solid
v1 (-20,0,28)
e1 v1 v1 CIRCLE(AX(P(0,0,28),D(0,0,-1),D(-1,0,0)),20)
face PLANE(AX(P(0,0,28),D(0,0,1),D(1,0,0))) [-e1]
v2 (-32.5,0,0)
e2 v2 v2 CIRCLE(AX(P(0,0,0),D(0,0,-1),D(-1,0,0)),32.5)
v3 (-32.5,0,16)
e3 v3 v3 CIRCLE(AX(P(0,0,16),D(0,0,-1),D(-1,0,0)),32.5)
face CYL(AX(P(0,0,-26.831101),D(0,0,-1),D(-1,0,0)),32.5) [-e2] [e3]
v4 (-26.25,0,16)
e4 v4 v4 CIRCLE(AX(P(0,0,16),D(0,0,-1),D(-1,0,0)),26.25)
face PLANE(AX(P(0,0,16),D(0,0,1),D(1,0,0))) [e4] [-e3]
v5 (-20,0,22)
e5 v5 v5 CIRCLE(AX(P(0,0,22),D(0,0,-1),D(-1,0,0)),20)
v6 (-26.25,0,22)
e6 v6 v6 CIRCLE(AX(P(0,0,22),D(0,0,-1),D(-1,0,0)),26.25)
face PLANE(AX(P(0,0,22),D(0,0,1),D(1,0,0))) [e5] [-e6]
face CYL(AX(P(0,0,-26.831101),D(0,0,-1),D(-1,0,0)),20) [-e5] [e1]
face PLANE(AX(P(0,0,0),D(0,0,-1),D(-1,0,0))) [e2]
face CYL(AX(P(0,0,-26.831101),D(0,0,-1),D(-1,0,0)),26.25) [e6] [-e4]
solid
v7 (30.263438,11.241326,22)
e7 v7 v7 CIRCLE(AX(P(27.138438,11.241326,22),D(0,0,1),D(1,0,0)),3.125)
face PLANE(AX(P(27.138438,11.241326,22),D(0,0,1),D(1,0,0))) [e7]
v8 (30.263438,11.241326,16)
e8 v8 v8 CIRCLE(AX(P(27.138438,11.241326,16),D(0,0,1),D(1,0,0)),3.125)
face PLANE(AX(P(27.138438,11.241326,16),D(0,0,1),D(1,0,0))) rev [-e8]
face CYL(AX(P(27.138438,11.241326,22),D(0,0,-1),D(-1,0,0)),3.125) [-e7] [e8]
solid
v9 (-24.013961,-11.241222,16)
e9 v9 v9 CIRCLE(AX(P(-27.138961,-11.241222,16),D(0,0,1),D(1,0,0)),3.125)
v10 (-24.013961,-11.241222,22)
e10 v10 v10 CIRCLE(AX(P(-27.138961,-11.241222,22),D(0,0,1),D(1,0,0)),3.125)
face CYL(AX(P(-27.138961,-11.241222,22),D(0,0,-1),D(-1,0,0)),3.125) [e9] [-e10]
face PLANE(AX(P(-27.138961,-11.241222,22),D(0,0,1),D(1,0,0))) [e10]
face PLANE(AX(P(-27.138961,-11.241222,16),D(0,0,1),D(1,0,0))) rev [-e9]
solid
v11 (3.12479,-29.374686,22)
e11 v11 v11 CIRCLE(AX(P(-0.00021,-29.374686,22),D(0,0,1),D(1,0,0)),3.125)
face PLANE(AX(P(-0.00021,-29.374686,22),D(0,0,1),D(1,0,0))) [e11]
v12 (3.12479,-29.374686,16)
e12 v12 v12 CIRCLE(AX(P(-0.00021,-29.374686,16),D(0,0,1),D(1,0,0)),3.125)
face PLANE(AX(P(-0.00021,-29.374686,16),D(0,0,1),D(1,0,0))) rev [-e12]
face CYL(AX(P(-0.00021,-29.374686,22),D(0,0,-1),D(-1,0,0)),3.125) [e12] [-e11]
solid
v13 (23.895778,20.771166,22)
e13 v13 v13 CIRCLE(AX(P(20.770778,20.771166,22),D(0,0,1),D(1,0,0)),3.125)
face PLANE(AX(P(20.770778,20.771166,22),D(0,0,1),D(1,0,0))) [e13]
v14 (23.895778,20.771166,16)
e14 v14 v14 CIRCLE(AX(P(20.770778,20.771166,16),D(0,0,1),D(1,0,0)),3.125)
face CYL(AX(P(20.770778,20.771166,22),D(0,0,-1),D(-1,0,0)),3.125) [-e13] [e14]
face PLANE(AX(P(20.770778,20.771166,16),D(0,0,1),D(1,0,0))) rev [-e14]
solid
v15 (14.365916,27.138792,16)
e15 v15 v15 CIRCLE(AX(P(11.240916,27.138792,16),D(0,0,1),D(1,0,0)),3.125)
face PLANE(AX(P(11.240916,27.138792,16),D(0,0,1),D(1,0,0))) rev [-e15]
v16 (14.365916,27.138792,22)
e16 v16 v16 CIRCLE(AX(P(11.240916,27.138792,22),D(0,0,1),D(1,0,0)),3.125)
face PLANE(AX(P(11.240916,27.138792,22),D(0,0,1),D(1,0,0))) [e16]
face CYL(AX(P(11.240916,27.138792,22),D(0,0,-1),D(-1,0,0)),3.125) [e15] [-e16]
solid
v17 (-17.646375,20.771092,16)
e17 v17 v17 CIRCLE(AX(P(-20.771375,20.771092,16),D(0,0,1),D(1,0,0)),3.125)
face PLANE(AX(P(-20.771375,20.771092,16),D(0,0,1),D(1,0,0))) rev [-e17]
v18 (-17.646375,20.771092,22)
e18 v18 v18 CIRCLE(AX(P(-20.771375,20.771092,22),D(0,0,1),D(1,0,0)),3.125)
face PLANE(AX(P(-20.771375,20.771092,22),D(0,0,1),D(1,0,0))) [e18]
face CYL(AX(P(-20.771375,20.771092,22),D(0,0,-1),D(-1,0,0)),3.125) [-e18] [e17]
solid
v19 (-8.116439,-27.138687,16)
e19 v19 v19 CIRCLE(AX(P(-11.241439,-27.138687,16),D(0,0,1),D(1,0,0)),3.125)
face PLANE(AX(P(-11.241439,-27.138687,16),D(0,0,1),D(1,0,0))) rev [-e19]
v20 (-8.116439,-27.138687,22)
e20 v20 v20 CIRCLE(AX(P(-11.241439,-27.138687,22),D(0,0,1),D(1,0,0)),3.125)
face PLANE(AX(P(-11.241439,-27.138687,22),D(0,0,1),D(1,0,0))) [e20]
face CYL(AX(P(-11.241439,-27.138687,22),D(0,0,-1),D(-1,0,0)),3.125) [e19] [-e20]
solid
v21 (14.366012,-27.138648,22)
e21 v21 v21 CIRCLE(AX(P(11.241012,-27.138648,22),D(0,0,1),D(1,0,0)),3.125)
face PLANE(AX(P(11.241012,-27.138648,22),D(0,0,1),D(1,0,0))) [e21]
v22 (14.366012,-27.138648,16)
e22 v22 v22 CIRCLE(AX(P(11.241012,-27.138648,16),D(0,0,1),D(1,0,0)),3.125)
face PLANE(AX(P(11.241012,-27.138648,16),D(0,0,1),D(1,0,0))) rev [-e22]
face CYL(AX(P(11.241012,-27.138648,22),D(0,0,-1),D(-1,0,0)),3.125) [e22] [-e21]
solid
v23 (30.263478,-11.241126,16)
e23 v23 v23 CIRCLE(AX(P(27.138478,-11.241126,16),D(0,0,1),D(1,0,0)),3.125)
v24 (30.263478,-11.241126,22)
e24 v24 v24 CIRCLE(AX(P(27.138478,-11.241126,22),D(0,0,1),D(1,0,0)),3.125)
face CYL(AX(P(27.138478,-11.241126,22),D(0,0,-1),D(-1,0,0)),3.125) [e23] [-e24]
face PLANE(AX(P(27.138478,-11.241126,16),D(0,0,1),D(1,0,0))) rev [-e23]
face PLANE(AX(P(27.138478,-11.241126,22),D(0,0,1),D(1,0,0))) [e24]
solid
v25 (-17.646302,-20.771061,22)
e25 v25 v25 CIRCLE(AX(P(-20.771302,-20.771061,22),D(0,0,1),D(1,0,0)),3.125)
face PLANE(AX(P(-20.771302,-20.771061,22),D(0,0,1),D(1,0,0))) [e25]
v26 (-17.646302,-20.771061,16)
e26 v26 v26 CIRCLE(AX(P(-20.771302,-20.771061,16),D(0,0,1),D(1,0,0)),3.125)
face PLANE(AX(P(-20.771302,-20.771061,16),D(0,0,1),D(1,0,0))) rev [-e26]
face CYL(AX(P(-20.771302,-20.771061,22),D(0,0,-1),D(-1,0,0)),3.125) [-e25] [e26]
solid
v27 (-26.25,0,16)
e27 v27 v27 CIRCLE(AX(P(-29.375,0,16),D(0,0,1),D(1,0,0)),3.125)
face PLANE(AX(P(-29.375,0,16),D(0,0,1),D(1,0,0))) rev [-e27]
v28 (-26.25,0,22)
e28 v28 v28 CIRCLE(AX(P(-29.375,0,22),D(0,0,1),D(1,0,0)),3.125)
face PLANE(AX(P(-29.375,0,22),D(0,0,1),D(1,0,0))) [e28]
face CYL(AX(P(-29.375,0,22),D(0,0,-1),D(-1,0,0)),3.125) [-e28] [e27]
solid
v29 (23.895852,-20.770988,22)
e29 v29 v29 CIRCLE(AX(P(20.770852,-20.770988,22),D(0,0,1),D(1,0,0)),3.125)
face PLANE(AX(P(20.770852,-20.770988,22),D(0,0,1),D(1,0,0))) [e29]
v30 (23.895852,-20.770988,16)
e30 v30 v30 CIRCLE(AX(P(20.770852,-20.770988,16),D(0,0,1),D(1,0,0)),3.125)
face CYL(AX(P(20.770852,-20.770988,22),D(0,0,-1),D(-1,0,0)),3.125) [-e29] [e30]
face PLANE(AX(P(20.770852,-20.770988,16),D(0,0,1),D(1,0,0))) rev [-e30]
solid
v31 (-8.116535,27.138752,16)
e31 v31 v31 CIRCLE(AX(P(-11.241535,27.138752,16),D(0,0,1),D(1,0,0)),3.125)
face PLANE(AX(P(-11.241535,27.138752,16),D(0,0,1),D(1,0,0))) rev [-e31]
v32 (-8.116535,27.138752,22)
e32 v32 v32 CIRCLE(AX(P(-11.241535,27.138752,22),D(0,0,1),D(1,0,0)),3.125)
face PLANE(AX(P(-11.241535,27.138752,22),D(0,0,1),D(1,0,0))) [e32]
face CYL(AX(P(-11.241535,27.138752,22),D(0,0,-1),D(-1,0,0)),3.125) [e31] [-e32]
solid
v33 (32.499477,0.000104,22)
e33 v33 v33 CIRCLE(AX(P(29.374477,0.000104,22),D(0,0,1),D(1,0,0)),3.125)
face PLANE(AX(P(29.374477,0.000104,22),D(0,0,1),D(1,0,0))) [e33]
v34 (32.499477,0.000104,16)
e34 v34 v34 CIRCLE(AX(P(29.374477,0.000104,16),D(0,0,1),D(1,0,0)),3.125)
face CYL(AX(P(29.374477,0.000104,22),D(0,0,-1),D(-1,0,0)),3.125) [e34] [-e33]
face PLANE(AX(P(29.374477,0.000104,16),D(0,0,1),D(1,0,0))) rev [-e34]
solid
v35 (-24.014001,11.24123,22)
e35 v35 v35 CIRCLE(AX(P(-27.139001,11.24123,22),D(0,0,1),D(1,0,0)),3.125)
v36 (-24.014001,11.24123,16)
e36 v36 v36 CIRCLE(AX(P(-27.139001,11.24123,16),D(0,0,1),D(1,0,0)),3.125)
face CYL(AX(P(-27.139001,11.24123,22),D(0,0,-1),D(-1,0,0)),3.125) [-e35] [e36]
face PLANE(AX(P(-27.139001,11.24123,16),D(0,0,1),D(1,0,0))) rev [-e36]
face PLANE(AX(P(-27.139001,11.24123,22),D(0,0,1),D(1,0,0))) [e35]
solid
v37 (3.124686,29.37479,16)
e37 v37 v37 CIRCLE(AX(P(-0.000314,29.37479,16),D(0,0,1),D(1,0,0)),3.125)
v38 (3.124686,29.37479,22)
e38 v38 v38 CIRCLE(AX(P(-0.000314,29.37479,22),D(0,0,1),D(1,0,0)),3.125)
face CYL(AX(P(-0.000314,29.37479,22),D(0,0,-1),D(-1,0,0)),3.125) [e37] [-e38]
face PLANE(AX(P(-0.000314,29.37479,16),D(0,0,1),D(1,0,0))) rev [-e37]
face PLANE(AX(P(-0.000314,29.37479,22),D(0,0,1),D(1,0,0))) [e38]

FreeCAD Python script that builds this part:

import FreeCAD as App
import Part
import Sketcher

V = App.Vector

doc = App.newDocument("Part")
body = doc.addObject("PartDesign::Body", "Body")

sketch1 = body.newObject("Sketcher::SketchObject", "Sketch")
sketch1.AttachmentSupport = (doc.getObject("XZ_Plane"), [""])
sketch1.MapMode = "FlatFace"
sketch1.addGeometry([
    Part.LineSegment(V(32, 0, 0), V(0, 0, 0)),
    Part.LineSegment(V(0, 0, 0), V(0, 28, 0)),
    Part.LineSegment(V(0, 28, 0), V(20, 28, 0)),
    Part.LineSegment(V(20, 28, 0), V(20, 22, 0)),
    Part.LineSegment(V(20, 22, 0), V(26, 22, 0)),
    Part.LineSegment(V(26, 22, 0), V(26, 16, 0)),
    Part.LineSegment(V(26, 16, 0), V(32, 16, 0)),
    Part.LineSegment(V(32, 16, 0), V(32, 0, 0)),
], False)
sketch1.addConstraint([
    Sketcher.Constraint("Coincident", 0, 2, 1, 1),
    Sketcher.Constraint("Coincident", 1, 2, 2, 1),
    Sketcher.Constraint("Coincident", 2, 2, 3, 1),
    Sketcher.Constraint("Coincident", 3, 2, 4, 1),
    Sketcher.Constraint("Coincident", 4, 2, 5, 1),
    Sketcher.Constraint("Coincident", 5, 2, 6, 1),
    Sketcher.Constraint("Coincident", 6, 2, 7, 1),
    Sketcher.Constraint("Coincident", 7, 2, 0, 1),
    Sketcher.Constraint("Horizontal", 0),
    Sketcher.Constraint("Vertical", 1),
    Sketcher.Constraint("Horizontal", 2),
    Sketcher.Constraint("Vertical", 3),
    Sketcher.Constraint("Horizontal", 4),
    Sketcher.Constraint("Vertical", 5),
    Sketcher.Constraint("Horizontal", 6),
    Sketcher.Constraint("Vertical", 7),
    Sketcher.Constraint("Coincident", 0, 2, -1, 1),
    Sketcher.Constraint("Equal", 4, 6),
    Sketcher.Constraint("Equal", 3, 5),
    Sketcher.Constraint("DistanceX", 2, 1, 2, 2, 20.0),
    Sketcher.Constraint("DistanceY", 1, 1, 1, 2, 28.0),
    Sketcher.Constraint("DistanceY", 3, 2, 3, 1, 6.0),
    Sketcher.Constraint("DistanceX", 0, 2, 0, 1, 32.5),
])
revolution = body.newObject("PartDesign::Revolution", "Revolution")
revolution.Profile = sketch1
revolution.ReferenceAxis = (sketch1, ["V_Axis"])
revolution.Angle = 360
body2 = doc.addObject("PartDesign::Body", "Body001")

sketch2 = body2.newObject("Sketcher::SketchObject", "Sketch001")
sketch2.AttachmentSupport = (doc.getObject("XY_Plane001"), [""])
sketch2.MapMode = "FlatFace"
sketch2.AttachmentOffset = App.Placement(V(0, 0, 16), App.Rotation())
sketch2.addGeometry(Part.Circle(V(-29.4, 0, 0), V(0, 0, 1), 3.1), False)
sketch2.addConstraint([
    Sketcher.Constraint("PointOnObject", 0, 3, -1),
    Sketcher.Constraint("Diameter", 0, 6.25),
    Sketcher.Constraint("DistanceX", 0, 3, -1, 1, 29.375),
])
pad1 = body2.newObject("PartDesign::Pad", "Pad")
pad1.Profile = sketch2
pad1.Length = 6
body3 = doc.addObject("PartDesign::Body", "Body002")

sketch3 = body3.newObject("Sketcher::SketchObject", "Sketch002")
sketch3.AttachmentSupport = (doc.getObject("XY_Plane002"), [""])
sketch3.MapMode = "FlatFace"
sketch3.AttachmentOffset = App.Placement(V(0, 0, 16), App.Rotation())
sketch3.addGeometry(Part.Circle(V(-27.1, 11.2, 0), V(0, 0, 1), 3.1), False)
sketch3.addConstraint([
    Sketcher.Constraint("Diameter", 0, 6.25),
    Sketcher.Constraint("DistanceX", 0, 3, -1, 1, 27.139001),
    Sketcher.Constraint("DistanceY", -1, 1, 0, 3, 11.24123),
])
pad2 = body3.newObject("PartDesign::Pad", "Pad001")
pad2.Profile = sketch3
pad2.Length = 6
body4 = doc.addObject("PartDesign::Body", "Body003")

sketch4 = body4.newObject("Sketcher::SketchObject", "Sketch003")
sketch4.AttachmentSupport = (doc.getObject("XY_Plane003"), [""])
sketch4.MapMode = "FlatFace"
sketch4.AttachmentOffset = App.Placement(V(0, 0, 16), App.Rotation())
sketch4.addGeometry(Part.Circle(V(-20.8, 20.8, 0), V(0, 0, 1), 3.1), False)
sketch4.addConstraint([
    Sketcher.Constraint("Diameter", 0, 6.25),
    Sketcher.Constraint("DistanceY", -1, 1, 0, 3, 20.771092),
    Sketcher.Constraint("DistanceX", 0, 3, -1, 1, 20.771375),
])
pad3 = body4.newObject("PartDesign::Pad", "Pad002")
pad3.Profile = sketch4
pad3.Length = 6
body5 = doc.addObject("PartDesign::Body", "Body004")

sketch5 = body5.newObject("Sketcher::SketchObject", "Sketch004")
sketch5.AttachmentSupport = (doc.getObject("XY_Plane004"), [""])
sketch5.MapMode = "FlatFace"
sketch5.AttachmentOffset = App.Placement(V(0, 0, 16), App.Rotation())
sketch5.addGeometry(Part.Circle(V(-11.2, 27.1, 0), V(0, 0, 1), 3.1), False)
sketch5.addConstraint([
    Sketcher.Constraint("Diameter", 0, 6.25),
    Sketcher.Constraint("DistanceY", -1, 1, 0, 3, 27.138752),
    Sketcher.Constraint("DistanceX", 0, 3, -1, 1, 11.241535),
])
pad4 = body5.newObject("PartDesign::Pad", "Pad003")
pad4.Profile = sketch5
pad4.Length = 6
body6 = doc.addObject("PartDesign::Body", "Body005")

sketch6 = body6.newObject("Sketcher::SketchObject", "Sketch005")
sketch6.AttachmentSupport = (doc.getObject("XY_Plane005"), [""])
sketch6.MapMode = "FlatFace"
sketch6.AttachmentOffset = App.Placement(V(0, 0, 16), App.Rotation())
sketch6.addGeometry(Part.Circle(V(0, 29.4, 0), V(0, 0, 1), 3.1), False)
sketch6.addConstraint([
    Sketcher.Constraint("Diameter", 0, 6.25),
    Sketcher.Constraint("DistanceY", -1, 1, 0, 3, 29.37479),
    Sketcher.Constraint("DistanceX", 0, 3, -1, 1, 0.000314),
])
pad5 = body6.newObject("PartDesign::Pad", "Pad004")
pad5.Profile = sketch6
pad5.Length = 6
body7 = doc.addObject("PartDesign::Body", "Body006")

sketch7 = body7.newObject("Sketcher::SketchObject", "Sketch006")
sketch7.AttachmentSupport = (doc.getObject("XY_Plane006"), [""])
sketch7.MapMode = "FlatFace"
sketch7.AttachmentOffset = App.Placement(V(0, 0, 16), App.Rotation())
sketch7.addGeometry(Part.Circle(V(11.2, 27.1, 0), V(0, 0, 1), 3.1), False)
sketch7.addConstraint([
    Sketcher.Constraint("Diameter", 0, 6.25),
    Sketcher.Constraint("DistanceY", -1, 1, 0, 3, 27.138792),
    Sketcher.Constraint("DistanceX", -1, 1, 0, 3, 11.240916),
])
pad6 = body7.newObject("PartDesign::Pad", "Pad005")
pad6.Profile = sketch7
pad6.Length = 6
body8 = doc.addObject("PartDesign::Body", "Body007")

sketch8 = body8.newObject("Sketcher::SketchObject", "Sketch007")
sketch8.AttachmentSupport = (doc.getObject("XY_Plane007"), [""])
sketch8.MapMode = "FlatFace"
sketch8.AttachmentOffset = App.Placement(V(0, 0, 16), App.Rotation())
sketch8.addGeometry(Part.Circle(V(20.8, 20.8, 0), V(0, 0, 1), 3.1), False)
sketch8.addConstraint([
    Sketcher.Constraint("Diameter", 0, 6.25),
    Sketcher.Constraint("DistanceX", -1, 1, 0, 3, 20.770778),
    Sketcher.Constraint("DistanceY", -1, 1, 0, 3, 20.771166),
])
pad7 = body8.newObject("PartDesign::Pad", "Pad006")
pad7.Profile = sketch8
pad7.Length = 6
body9 = doc.addObject("PartDesign::Body", "Body008")

sketch9 = body9.newObject("Sketcher::SketchObject", "Sketch008")
sketch9.AttachmentSupport = (doc.getObject("XY_Plane008"), [""])
sketch9.MapMode = "FlatFace"
sketch9.AttachmentOffset = App.Placement(V(0, 0, 16), App.Rotation())
sketch9.addGeometry(Part.Circle(V(27.1, 11.2, 0), V(0, 0, 1), 3.1), False)
sketch9.addConstraint([
    Sketcher.Constraint("Diameter", 0, 6.25),
    Sketcher.Constraint("DistanceX", -1, 1, 0, 3, 27.138438),
    Sketcher.Constraint("DistanceY", -1, 1, 0, 3, 11.241326),
])
pad8 = body9.newObject("PartDesign::Pad", "Pad007")
pad8.Profile = sketch9
pad8.Length = 6
body10 = doc.addObject("PartDesign::Body", "Body009")

sketch10 = body10.newObject("Sketcher::SketchObject", "Sketch009")
sketch10.AttachmentSupport = (doc.getObject("XY_Plane009"), [""])
sketch10.MapMode = "FlatFace"
sketch10.AttachmentOffset = App.Placement(V(0, 0, 16), App.Rotation())
sketch10.addGeometry(Part.Circle(V(29.4, 0, 0), V(0, 0, 1), 3.1), False)
sketch10.addConstraint([
    Sketcher.Constraint("Diameter", 0, 6.25),
    Sketcher.Constraint("DistanceX", -1, 1, 0, 3, 29.374477),
    Sketcher.Constraint("DistanceY", -1, 1, 0, 3, 0.000104),
])
pad9 = body10.newObject("PartDesign::Pad", "Pad008")
pad9.Profile = sketch10
pad9.Length = 6
body11 = doc.addObject("PartDesign::Body", "Body010")

sketch11 = body11.newObject("Sketcher::SketchObject", "Sketch010")
sketch11.AttachmentSupport = (doc.getObject("XY_Plane010"), [""])
sketch11.MapMode = "FlatFace"
sketch11.AttachmentOffset = App.Placement(V(0, 0, 16), App.Rotation())
sketch11.addGeometry(Part.Circle(V(27.1, -11.2, 0), V(0, 0, 1), 3.1), False)
sketch11.addConstraint([
    Sketcher.Constraint("Diameter", 0, 6.25),
    Sketcher.Constraint("DistanceX", -1, 1, 0, 3, 27.138478),
    Sketcher.Constraint("DistanceY", 0, 3, -1, 1, 11.241126),
])
pad10 = body11.newObject("PartDesign::Pad", "Pad009")
pad10.Profile = sketch11
pad10.Length = 6
body12 = doc.addObject("PartDesign::Body", "Body011")

sketch12 = body12.newObject("Sketcher::SketchObject", "Sketch011")
sketch12.AttachmentSupport = (doc.getObject("XY_Plane011"), [""])
sketch12.MapMode = "FlatFace"
sketch12.AttachmentOffset = App.Placement(V(0, 0, 16), App.Rotation())
sketch12.addGeometry(Part.Circle(V(20.8, -20.8, 0), V(0, 0, 1), 3.1), False)
sketch12.addConstraint([
    Sketcher.Constraint("Diameter", 0, 6.25),
    Sketcher.Constraint("DistanceX", -1, 1, 0, 3, 20.770852),
    Sketcher.Constraint("DistanceY", 0, 3, -1, 1, 20.770988),
])
pad11 = body12.newObject("PartDesign::Pad", "Pad010")
pad11.Profile = sketch12
pad11.Length = 6
body13 = doc.addObject("PartDesign::Body", "Body012")

sketch13 = body13.newObject("Sketcher::SketchObject", "Sketch012")
sketch13.AttachmentSupport = (doc.getObject("XY_Plane012"), [""])
sketch13.MapMode = "FlatFace"
sketch13.AttachmentOffset = App.Placement(V(0, 0, 16), App.Rotation())
sketch13.addGeometry(Part.Circle(V(11.2, -27.1, 0), V(0, 0, 1), 3.1), False)
sketch13.addConstraint([
    Sketcher.Constraint("Diameter", 0, 6.25),
    Sketcher.Constraint("DistanceX", -1, 1, 0, 3, 11.241012),
    Sketcher.Constraint("DistanceY", 0, 3, -1, 1, 27.138648),
])
pad12 = body13.newObject("PartDesign::Pad", "Pad011")
pad12.Profile = sketch13
pad12.Length = 6
body14 = doc.addObject("PartDesign::Body", "Body013")

sketch14 = body14.newObject("Sketcher::SketchObject", "Sketch013")
sketch14.AttachmentSupport = (doc.getObject("XY_Plane013"), [""])
sketch14.MapMode = "FlatFace"
sketch14.AttachmentOffset = App.Placement(V(0, 0, 16), App.Rotation())
sketch14.addGeometry(Part.Circle(V(0, -29.4, 0), V(0, 0, 1), 3.1), False)
sketch14.addConstraint([
    Sketcher.Constraint("Diameter", 0, 6.25),
    Sketcher.Constraint("DistanceX", 0, 3, -1, 1, 0.00021),
    Sketcher.Constraint("DistanceY", 0, 3, -1, 1, 29.374686),
])
pad13 = body14.newObject("PartDesign::Pad", "Pad012")
pad13.Profile = sketch14
pad13.Length = 6
body15 = doc.addObject("PartDesign::Body", "Body014")

sketch15 = body15.newObject("Sketcher::SketchObject", "Sketch014")
sketch15.AttachmentSupport = (doc.getObject("XY_Plane014"), [""])
sketch15.MapMode = "FlatFace"
sketch15.AttachmentOffset = App.Placement(V(0, 0, 16), App.Rotation())
sketch15.addGeometry(Part.Circle(V(-11.2, -27.1, 0), V(0, 0, 1), 3.1), False)
sketch15.addConstraint([
    Sketcher.Constraint("Diameter", 0, 6.25),
    Sketcher.Constraint("DistanceX", 0, 3, -1, 1, 11.241439),
    Sketcher.Constraint("DistanceY", 0, 3, -1, 1, 27.138687),
])
pad14 = body15.newObject("PartDesign::Pad", "Pad013")
pad14.Profile = sketch15
pad14.Length = 6
body16 = doc.addObject("PartDesign::Body", "Body015")

sketch16 = body16.newObject("Sketcher::SketchObject", "Sketch015")
sketch16.AttachmentSupport = (doc.getObject("XY_Plane015"), [""])
sketch16.MapMode = "FlatFace"
sketch16.AttachmentOffset = App.Placement(V(0, 0, 16), App.Rotation())
sketch16.addGeometry(Part.Circle(V(-20.8, -20.8, 0), V(0, 0, 1), 3.1), False)
sketch16.addConstraint([
    Sketcher.Constraint("Diameter", 0, 6.25),
    Sketcher.Constraint("DistanceX", 0, 3, -1, 1, 20.771302),
    Sketcher.Constraint("DistanceY", 0, 3, -1, 1, 20.771061),
])
pad15 = body16.newObject("PartDesign::Pad", "Pad014")
pad15.Profile = sketch16
pad15.Length = 6
body17 = doc.addObject("PartDesign::Body", "Body016")

sketch17 = body17.newObject("Sketcher::SketchObject", "Sketch016")
sketch17.AttachmentSupport = (doc.getObject("XY_Plane016"), [""])
sketch17.MapMode = "FlatFace"
sketch17.AttachmentOffset = App.Placement(V(0, 0, 16), App.Rotation())
sketch17.addGeometry(Part.Circle(V(-27.1, -11.2, 0), V(0, 0, 1), 3.1), False)
sketch17.addConstraint([
    Sketcher.Constraint("Diameter", 0, 6.25),
    Sketcher.Constraint("DistanceX", 0, 3, -1, 1, 27.138961),
    Sketcher.Constraint("DistanceY", 0, 3, -1, 1, 11.241222),
])
pad16 = body17.newObject("PartDesign::Pad", "Pad015")
pad16.Profile = sketch17
pad16.Length = 6

doc.recompute()
